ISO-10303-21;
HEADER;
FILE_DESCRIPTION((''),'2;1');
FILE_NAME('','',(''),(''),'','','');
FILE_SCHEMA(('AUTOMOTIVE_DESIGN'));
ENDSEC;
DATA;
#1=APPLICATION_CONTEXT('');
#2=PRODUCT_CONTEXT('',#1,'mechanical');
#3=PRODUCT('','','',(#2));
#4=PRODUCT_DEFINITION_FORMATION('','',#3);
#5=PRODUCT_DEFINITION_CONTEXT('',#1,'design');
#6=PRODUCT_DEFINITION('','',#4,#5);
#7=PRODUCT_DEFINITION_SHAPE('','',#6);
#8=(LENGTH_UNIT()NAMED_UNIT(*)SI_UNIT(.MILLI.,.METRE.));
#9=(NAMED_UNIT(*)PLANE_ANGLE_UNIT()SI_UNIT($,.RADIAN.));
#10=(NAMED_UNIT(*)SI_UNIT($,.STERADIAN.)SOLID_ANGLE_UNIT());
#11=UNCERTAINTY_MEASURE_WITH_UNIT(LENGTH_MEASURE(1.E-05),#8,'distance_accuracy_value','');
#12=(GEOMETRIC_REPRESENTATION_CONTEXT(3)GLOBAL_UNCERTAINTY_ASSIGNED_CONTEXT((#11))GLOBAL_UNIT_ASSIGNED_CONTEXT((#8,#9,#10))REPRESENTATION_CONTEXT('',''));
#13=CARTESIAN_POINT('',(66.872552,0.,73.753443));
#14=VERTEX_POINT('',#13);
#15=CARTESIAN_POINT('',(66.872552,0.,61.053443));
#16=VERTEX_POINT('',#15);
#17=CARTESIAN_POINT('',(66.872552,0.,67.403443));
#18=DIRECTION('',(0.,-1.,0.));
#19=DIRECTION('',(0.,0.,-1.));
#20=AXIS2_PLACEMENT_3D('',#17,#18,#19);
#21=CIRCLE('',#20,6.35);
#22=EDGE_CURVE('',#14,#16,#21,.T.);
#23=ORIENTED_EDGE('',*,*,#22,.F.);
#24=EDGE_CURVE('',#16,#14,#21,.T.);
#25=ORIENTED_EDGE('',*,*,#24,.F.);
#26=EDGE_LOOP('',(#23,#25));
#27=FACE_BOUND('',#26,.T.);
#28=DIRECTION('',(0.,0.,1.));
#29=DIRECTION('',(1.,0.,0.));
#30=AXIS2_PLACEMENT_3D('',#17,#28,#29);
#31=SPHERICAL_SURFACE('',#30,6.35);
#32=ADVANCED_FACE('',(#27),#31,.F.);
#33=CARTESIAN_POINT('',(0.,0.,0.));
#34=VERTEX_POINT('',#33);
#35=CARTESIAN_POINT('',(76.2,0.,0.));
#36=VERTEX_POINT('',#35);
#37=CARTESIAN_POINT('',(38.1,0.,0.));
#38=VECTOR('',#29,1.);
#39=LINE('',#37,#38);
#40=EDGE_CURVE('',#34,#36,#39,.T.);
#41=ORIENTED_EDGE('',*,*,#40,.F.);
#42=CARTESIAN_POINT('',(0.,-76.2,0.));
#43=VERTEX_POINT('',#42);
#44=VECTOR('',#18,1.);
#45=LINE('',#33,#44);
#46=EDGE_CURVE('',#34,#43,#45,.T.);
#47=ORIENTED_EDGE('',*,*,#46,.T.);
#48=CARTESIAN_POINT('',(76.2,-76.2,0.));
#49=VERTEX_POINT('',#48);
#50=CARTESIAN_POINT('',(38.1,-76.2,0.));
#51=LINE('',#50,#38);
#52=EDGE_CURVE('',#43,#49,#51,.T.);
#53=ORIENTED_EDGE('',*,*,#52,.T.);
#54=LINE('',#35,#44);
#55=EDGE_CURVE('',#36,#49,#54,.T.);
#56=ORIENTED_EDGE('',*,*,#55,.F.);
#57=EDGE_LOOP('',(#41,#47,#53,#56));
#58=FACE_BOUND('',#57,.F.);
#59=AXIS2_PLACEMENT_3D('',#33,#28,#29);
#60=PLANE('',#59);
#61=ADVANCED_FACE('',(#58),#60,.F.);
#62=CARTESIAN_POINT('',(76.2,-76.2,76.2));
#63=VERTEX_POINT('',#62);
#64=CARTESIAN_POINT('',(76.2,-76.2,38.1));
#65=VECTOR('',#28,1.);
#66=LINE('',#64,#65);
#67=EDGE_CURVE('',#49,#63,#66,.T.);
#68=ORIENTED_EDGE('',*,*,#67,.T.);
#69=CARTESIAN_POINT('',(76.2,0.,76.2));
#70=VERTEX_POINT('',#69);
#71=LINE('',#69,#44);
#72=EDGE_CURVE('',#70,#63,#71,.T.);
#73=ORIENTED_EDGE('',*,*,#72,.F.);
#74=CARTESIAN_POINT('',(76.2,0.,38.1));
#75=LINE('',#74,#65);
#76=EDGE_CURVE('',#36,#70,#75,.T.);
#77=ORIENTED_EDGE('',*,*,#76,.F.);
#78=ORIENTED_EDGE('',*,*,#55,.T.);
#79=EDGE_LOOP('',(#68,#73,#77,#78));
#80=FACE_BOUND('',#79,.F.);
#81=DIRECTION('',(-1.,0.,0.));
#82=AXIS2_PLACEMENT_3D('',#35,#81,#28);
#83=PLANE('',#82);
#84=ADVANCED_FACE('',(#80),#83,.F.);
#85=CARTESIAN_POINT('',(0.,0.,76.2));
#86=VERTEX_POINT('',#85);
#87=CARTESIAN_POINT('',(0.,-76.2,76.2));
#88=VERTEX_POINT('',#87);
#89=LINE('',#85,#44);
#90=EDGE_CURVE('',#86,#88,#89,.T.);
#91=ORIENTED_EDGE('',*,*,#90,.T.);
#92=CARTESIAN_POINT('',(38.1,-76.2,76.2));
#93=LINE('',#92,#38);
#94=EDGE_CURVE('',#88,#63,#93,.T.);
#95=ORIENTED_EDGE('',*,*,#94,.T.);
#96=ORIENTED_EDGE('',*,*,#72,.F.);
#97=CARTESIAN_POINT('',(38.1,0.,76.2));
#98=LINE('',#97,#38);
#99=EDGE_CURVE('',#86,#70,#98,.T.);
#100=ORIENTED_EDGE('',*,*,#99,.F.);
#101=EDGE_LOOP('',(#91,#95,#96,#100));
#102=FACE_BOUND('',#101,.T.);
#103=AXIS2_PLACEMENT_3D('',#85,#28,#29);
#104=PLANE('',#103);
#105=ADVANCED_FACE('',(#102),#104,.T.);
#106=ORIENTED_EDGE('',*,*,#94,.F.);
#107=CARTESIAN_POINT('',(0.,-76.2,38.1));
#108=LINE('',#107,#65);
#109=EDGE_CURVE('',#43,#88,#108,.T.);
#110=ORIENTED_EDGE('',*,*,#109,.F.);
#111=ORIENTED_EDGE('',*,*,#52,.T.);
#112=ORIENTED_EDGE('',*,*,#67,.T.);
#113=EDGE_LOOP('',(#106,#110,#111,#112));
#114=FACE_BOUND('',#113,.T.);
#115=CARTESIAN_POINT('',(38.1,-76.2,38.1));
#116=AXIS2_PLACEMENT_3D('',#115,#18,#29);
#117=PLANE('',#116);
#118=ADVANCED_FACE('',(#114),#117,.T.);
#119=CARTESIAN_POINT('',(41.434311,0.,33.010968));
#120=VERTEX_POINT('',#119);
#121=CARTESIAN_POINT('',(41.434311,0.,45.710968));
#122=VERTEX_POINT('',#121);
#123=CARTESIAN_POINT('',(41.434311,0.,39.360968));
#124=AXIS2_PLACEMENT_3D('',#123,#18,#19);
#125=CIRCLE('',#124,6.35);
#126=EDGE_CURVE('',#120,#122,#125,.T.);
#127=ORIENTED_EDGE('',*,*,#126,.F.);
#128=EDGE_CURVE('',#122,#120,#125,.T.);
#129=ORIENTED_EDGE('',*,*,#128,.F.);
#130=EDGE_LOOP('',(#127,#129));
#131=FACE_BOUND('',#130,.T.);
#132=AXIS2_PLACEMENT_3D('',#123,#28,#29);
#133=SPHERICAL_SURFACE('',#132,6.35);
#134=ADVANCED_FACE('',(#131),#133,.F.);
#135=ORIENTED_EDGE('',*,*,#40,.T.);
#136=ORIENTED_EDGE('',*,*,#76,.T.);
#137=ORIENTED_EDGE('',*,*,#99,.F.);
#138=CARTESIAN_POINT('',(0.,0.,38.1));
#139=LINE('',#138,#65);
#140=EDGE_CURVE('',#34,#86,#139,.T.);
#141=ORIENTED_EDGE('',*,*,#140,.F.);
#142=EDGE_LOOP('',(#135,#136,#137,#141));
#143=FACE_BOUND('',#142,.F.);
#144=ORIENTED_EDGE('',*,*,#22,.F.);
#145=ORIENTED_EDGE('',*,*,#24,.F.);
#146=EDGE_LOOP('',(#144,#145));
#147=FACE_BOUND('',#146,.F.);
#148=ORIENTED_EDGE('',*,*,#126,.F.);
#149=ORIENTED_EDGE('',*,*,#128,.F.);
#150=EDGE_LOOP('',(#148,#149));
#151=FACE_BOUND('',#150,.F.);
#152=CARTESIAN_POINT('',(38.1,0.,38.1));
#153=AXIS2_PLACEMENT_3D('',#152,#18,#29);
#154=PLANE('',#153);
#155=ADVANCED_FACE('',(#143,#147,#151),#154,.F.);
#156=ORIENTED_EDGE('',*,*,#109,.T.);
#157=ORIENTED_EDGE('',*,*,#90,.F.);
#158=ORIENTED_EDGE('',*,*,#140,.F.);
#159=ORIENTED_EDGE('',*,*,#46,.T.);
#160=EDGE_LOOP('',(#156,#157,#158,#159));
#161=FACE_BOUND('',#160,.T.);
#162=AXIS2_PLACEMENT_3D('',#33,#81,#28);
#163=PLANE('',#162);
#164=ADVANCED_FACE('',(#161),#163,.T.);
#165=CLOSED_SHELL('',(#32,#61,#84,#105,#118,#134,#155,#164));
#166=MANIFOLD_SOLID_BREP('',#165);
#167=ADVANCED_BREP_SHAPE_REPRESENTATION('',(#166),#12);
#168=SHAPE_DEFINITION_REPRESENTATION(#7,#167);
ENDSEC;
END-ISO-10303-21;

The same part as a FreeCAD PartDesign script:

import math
import FreeCAD as App
import Part
import Sketcher

V = App.Vector
Q = App.Units.Quantity


def add_polygon(sketch, points):
    """Adds a closed chain of lines whose ends are joined by coincident constraints."""
    first, n = sketch.GeometryCount, len(points)
    for a, b in zip(points, points[1:] + points[:1]):
        sketch.addGeometry(Part.LineSegment(App.Vector(*a, 0), App.Vector(*b, 0)), False)
    for i in range(n):
        sketch.addConstraint(Sketcher.Constraint("Coincident", first + i, 2, first + (i + 1) % n, 1))

doc = App.newDocument("Part")
body = doc.addObject("PartDesign::Body", "Body")

# Sketch on XZ plane
sketch1 = body.newObject("Sketcher::SketchObject", "Sketch")
sketch1.AttachmentSupport = (doc.getObject("XZ_Plane"), [""])
sketch1.MapMode = "FlatFace"
add_polygon(sketch1, [(0, 76), (0, 0), (76, 0), (76, 76)])  # lines 0-3
sketch1.addConstraint([
    Sketcher.Constraint("Vertical", 0),
    Sketcher.Constraint("Horizontal", 1),
    Sketcher.Constraint("Vertical", 2),
    Sketcher.Constraint("Horizontal", 3),
    Sketcher.Constraint("Coincident", 0, 2, -1, 1),
    Sketcher.Constraint("Equal", 3, 0),
    Sketcher.Constraint("DistanceX", 1, 1, 1, 2, Q("3 in")),
])
pad1 = body.newObject("PartDesign::Pad", "Pad")
pad1.Profile = sketch1
pad1.Length = Q("3 in")

# Sketch on XZ plane
sketch2 = body.newObject("Sketcher::SketchObject", "Sketch001")
sketch2.AttachmentSupport = (doc.getObject("XZ_Plane"), [""])
sketch2.MapMode = "FlatFace"
sketch2.addGeometry([
    Part.LineSegment(V(67, 74, 0), V(67, 61, 0)),
    Part.ArcOfCircle(Part.Circle(V(67, 67, 0), V(0, 0, 1), 6), math.radians(-90), math.radians(90)),
], False)
sketch2.addGeometry(Part.LineSegment(V(67, 74, 0), V(67, 61, 0)), True)  # axis
sketch2.addConstraint([
    Sketcher.Constraint("Coincident", 0, 1, 1, 2),
    Sketcher.Constraint("Coincident", 1, 1, 0, 2),
    Sketcher.Constraint("Vertical", 0),
    Sketcher.Constraint("Vertical", 2),
    Sketcher.Constraint("Coincident", 2, 1, 0, 1),
    Sketcher.Constraint("Vertical", 1, 3, 0, 1),
    Sketcher.Constraint("Equal", 0, 2),
    Sketcher.Constraint("Radius", 1, Q("0.25 in")),
    Sketcher.Constraint("DistanceX", -1, 1, 1, 3, 66.872552),
    Sketcher.Constraint("DistanceY", -1, 1, 1, 3, 67.403443),
])
groove = body.newObject("PartDesign::Groove", "Groove")
groove.Profile = sketch2
groove.ReferenceAxis = (sketch2, ["Axis0"])
groove.Angle = 360

# Sketch on XZ plane
sketch3 = body.newObject("Sketcher::SketchObject", "Sketch002")
sketch3.AttachmentSupport = (doc.getObject("XZ_Plane"), [""])
sketch3.MapMode = "FlatFace"
sketch3.addGeometry([
    Part.LineSegment(V(41, 46, 0), V(41, 33, 0)),
    Part.ArcOfCircle(Part.Circle(V(41, 39, 0), V(0, 0, 1), 6), math.radians(-90), math.radians(90)),
], False)
sketch3.addGeometry(Part.LineSegment(V(41, 46, 0), V(41, 33, 0)), True)  # axis
sketch3.addConstraint([
    Sketcher.Constraint("Coincident", 0, 1, 1, 2),
    Sketcher.Constraint("Coincident", 1, 1, 0, 2),
    Sketcher.Constraint("Vertical", 0),
    Sketcher.Constraint("Vertical", 2),
    Sketcher.Constraint("Coincident", 2, 1, 0, 1),
    Sketcher.Constraint("Vertical", 1, 3, 0, 1),
    Sketcher.Constraint("Equal", 0, 2),
    Sketcher.Constraint("Radius", 1, Q("0.25 in")),
    Sketcher.Constraint("DistanceX", -1, 1, 1, 3, 41.434311),
    Sketcher.Constraint("DistanceY", -1, 1, 1, 3, 39.360968),
])
groove2 = body.newObject("PartDesign::Groove", "Groove001")
groove2.Profile = sketch3
groove2.ReferenceAxis = (sketch3, ["Axis0"])
groove2.Angle = 360

doc.recompute()
